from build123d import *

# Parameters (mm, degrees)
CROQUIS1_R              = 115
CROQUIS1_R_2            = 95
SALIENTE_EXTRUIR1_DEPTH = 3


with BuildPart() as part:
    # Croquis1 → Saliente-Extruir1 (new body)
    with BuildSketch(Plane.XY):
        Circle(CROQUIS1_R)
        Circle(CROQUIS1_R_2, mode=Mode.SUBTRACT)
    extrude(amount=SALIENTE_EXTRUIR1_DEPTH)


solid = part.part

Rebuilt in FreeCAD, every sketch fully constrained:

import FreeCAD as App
import Part
import Sketcher
Q = App.Units.Quantity

doc = App.newDocument("Part")
params = doc.addObject("Spreadsheet::Sheet", "Params")
for row, (alias, value) in enumerate([
    ("sketch1_diameter", "230 mm"),
    ("sketch1_diameter2", "190 mm"),
    ("pad1_length", "3 mm"),
], start=1):
    params.set(f"A{row}", alias)
    params.set(f"B{row}", "=" + value)
    params.setAlias(f"B{row}", alias)

body = doc.addObject("PartDesign::Body", "Body")

# Sketch on XY plane
sketch1 = doc.addObject("Sketcher::SketchObject", "Sketch")
body.addObject(sketch1)
sketch1.AttachmentSupport = (doc.XY_Plane, [""])
sketch1.MapMode = "FlatFace"
sketch1.addGeometry([
    Part.Circle(App.Vector(0, 0, 0), App.Vector(0, 0, 1), 115),
    Part.Circle(App.Vector(0, 0, 0), App.Vector(0, 0, 1), 95),
], False)
sketch1.addConstraint([
    Sketcher.Constraint("Coincident", 0, 3, -1, 1),
    Sketcher.Constraint("Coincident", 1, 3, -1, 1),
    Sketcher.Constraint("Diameter", 0, Q("230 mm")),
    Sketcher.Constraint("Diameter", 1, Q("190 mm")),
])
sketch1.setExpression("Constraints[2]", "Params.sketch1_diameter")
sketch1.setExpression("Constraints[3]", "Params.sketch1_diameter2")
pad1 = doc.addObject("PartDesign::Pad", "Pad")
body.addObject(pad1)
pad1.Profile = sketch1
pad1.setExpression("Length", "Params.pad1_length")

doc.recompute()
